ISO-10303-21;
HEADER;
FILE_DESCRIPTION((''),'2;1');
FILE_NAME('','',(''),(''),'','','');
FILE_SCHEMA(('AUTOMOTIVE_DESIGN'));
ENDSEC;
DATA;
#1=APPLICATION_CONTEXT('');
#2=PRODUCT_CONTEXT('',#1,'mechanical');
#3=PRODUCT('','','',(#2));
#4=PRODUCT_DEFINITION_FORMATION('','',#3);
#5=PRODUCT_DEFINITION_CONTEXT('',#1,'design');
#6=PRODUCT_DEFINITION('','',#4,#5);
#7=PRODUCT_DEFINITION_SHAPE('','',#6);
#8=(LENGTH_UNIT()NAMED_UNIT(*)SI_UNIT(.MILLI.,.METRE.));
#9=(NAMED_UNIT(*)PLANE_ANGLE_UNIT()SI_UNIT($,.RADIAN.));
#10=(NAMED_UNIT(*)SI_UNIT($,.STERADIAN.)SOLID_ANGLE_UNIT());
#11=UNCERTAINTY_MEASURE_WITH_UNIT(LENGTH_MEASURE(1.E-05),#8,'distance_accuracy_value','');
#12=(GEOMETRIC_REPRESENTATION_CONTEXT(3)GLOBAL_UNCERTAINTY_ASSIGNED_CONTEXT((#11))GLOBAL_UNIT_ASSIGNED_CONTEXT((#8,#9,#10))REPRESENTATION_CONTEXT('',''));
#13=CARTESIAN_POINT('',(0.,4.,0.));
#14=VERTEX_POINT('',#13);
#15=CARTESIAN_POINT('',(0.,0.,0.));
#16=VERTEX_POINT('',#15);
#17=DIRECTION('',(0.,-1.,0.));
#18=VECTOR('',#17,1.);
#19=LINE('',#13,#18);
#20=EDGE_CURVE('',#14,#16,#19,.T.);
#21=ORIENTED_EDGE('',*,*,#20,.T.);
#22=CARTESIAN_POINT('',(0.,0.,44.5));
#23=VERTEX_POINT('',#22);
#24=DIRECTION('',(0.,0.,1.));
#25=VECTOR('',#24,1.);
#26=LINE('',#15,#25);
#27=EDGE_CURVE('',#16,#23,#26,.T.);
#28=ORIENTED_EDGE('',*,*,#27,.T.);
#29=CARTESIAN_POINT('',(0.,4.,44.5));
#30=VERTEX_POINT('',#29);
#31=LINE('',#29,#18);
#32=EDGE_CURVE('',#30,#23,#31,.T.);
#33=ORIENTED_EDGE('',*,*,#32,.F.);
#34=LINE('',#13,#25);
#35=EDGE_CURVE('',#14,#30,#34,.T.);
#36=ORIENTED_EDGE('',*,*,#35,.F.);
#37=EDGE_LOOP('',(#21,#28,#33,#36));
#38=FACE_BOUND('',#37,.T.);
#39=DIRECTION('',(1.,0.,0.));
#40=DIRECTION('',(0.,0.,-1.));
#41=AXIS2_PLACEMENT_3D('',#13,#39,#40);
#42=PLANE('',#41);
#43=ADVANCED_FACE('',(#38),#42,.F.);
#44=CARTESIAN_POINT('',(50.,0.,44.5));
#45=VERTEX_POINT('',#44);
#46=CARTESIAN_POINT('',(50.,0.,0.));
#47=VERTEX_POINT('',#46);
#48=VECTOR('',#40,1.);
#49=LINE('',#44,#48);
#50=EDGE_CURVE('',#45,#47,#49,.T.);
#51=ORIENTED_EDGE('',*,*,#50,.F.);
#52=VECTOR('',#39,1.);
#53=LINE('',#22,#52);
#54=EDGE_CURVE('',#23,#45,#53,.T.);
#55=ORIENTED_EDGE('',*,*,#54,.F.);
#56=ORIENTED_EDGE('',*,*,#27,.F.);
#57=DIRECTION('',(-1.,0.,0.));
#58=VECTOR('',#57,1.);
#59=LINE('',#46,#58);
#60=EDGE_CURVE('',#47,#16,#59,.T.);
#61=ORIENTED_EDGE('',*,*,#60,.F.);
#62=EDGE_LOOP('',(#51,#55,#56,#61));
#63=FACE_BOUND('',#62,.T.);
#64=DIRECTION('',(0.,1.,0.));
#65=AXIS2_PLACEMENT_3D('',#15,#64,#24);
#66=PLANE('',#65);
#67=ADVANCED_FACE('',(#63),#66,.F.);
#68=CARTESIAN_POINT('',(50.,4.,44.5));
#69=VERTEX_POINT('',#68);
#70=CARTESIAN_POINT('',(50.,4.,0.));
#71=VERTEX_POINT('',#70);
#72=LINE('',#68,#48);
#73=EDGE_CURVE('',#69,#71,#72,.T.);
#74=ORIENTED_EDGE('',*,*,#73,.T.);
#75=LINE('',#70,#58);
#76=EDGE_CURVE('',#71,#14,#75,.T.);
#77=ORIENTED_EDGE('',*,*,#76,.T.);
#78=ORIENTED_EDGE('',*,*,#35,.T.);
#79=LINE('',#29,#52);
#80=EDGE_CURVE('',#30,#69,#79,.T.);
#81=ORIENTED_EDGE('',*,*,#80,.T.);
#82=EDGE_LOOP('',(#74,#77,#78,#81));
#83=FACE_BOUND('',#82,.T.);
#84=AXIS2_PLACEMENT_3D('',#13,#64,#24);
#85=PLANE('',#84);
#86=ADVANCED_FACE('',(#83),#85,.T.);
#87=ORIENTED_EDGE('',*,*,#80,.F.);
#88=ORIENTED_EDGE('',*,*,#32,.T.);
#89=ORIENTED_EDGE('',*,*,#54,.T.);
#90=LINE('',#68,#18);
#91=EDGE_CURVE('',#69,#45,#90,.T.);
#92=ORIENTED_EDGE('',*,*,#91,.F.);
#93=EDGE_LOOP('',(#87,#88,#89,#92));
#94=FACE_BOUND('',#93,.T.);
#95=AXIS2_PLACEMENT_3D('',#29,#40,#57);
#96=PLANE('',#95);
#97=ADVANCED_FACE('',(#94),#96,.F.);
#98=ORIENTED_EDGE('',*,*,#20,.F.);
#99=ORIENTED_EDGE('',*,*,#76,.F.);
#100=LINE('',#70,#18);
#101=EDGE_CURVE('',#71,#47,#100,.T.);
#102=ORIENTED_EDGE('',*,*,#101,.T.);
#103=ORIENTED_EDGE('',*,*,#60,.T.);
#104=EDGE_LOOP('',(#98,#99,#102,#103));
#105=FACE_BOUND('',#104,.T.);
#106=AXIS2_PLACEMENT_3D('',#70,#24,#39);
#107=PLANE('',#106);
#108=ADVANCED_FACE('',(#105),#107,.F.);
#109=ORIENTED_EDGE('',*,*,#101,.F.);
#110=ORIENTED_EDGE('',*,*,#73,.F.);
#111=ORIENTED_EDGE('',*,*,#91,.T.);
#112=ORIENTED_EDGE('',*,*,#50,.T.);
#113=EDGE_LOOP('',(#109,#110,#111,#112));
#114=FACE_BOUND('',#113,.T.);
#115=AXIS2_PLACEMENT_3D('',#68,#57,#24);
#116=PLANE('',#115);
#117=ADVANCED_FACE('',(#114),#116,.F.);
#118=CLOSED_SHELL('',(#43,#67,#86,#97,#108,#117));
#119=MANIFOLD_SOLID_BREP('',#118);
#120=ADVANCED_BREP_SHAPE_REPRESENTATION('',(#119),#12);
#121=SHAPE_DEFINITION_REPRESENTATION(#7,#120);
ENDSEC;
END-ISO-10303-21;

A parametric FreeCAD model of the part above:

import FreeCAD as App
import Part
import Sketcher

V = App.Vector
Q = App.Units.Quantity

doc = App.newDocument("Part")
params = doc.addObject("Spreadsheet::Sheet", "Params")
for row, (alias, value) in enumerate([
    ("sketch1_width", "50 mm"),
    ("sketch1_height", "44.5 mm"),
    ("pad1_length", "4 mm"),
], start=1):
    params.set(f"A{row}", alias)
    params.set(f"B{row}", "=" + value)
    params.setAlias(f"B{row}", alias)

body = doc.addObject("PartDesign::Body", "Body")

sketch1 = body.newObject("Sketcher::SketchObject", "Sketch")
sketch1.AttachmentSupport = (doc.getObject("XZ_Plane"), [""])
sketch1.MapMode = "FlatFace"
sketch1.addGeometry([
    Part.LineSegment(V(0, 0, 0), V(0, 44.5, 0)),
    Part.LineSegment(V(0, 44.5, 0), V(50, 44.5, 0)),
    Part.LineSegment(V(50, 44.5, 0), V(50, 0, 0)),
    Part.LineSegment(V(50, 0, 0), V(0, 0, 0)),
], False)
sketch1.addConstraint([
    Sketcher.Constraint("Coincident", 0, 2, 1, 1),
    Sketcher.Constraint("Coincident", 1, 2, 2, 1),
    Sketcher.Constraint("Coincident", 2, 2, 3, 1),
    Sketcher.Constraint("Coincident", 3, 2, 0, 1),
    Sketcher.Constraint("Vertical", 0),
    Sketcher.Constraint("Horizontal", 1),
    Sketcher.Constraint("Vertical", 2),
    Sketcher.Constraint("Horizontal", 3),
    Sketcher.Constraint("Coincident", 3, 2, -1, 1),
    Sketcher.Constraint("DistanceX", 1, 1, 1, 2, Q("50 mm")),
    Sketcher.Constraint("DistanceY", 0, 1, 0, 2, Q("44.5 mm")),
])
sketch1.setExpression("Constraints[9]", "Params.sketch1_width")
sketch1.setExpression("Constraints[10]", "Params.sketch1_height")
pad1 = body.newObject("PartDesign::Pad", "Pad")
pad1.Profile = sketch1
pad1.setExpression("Length", "Params.pad1_length")
pad1.Reversed = True

doc.recompute()
